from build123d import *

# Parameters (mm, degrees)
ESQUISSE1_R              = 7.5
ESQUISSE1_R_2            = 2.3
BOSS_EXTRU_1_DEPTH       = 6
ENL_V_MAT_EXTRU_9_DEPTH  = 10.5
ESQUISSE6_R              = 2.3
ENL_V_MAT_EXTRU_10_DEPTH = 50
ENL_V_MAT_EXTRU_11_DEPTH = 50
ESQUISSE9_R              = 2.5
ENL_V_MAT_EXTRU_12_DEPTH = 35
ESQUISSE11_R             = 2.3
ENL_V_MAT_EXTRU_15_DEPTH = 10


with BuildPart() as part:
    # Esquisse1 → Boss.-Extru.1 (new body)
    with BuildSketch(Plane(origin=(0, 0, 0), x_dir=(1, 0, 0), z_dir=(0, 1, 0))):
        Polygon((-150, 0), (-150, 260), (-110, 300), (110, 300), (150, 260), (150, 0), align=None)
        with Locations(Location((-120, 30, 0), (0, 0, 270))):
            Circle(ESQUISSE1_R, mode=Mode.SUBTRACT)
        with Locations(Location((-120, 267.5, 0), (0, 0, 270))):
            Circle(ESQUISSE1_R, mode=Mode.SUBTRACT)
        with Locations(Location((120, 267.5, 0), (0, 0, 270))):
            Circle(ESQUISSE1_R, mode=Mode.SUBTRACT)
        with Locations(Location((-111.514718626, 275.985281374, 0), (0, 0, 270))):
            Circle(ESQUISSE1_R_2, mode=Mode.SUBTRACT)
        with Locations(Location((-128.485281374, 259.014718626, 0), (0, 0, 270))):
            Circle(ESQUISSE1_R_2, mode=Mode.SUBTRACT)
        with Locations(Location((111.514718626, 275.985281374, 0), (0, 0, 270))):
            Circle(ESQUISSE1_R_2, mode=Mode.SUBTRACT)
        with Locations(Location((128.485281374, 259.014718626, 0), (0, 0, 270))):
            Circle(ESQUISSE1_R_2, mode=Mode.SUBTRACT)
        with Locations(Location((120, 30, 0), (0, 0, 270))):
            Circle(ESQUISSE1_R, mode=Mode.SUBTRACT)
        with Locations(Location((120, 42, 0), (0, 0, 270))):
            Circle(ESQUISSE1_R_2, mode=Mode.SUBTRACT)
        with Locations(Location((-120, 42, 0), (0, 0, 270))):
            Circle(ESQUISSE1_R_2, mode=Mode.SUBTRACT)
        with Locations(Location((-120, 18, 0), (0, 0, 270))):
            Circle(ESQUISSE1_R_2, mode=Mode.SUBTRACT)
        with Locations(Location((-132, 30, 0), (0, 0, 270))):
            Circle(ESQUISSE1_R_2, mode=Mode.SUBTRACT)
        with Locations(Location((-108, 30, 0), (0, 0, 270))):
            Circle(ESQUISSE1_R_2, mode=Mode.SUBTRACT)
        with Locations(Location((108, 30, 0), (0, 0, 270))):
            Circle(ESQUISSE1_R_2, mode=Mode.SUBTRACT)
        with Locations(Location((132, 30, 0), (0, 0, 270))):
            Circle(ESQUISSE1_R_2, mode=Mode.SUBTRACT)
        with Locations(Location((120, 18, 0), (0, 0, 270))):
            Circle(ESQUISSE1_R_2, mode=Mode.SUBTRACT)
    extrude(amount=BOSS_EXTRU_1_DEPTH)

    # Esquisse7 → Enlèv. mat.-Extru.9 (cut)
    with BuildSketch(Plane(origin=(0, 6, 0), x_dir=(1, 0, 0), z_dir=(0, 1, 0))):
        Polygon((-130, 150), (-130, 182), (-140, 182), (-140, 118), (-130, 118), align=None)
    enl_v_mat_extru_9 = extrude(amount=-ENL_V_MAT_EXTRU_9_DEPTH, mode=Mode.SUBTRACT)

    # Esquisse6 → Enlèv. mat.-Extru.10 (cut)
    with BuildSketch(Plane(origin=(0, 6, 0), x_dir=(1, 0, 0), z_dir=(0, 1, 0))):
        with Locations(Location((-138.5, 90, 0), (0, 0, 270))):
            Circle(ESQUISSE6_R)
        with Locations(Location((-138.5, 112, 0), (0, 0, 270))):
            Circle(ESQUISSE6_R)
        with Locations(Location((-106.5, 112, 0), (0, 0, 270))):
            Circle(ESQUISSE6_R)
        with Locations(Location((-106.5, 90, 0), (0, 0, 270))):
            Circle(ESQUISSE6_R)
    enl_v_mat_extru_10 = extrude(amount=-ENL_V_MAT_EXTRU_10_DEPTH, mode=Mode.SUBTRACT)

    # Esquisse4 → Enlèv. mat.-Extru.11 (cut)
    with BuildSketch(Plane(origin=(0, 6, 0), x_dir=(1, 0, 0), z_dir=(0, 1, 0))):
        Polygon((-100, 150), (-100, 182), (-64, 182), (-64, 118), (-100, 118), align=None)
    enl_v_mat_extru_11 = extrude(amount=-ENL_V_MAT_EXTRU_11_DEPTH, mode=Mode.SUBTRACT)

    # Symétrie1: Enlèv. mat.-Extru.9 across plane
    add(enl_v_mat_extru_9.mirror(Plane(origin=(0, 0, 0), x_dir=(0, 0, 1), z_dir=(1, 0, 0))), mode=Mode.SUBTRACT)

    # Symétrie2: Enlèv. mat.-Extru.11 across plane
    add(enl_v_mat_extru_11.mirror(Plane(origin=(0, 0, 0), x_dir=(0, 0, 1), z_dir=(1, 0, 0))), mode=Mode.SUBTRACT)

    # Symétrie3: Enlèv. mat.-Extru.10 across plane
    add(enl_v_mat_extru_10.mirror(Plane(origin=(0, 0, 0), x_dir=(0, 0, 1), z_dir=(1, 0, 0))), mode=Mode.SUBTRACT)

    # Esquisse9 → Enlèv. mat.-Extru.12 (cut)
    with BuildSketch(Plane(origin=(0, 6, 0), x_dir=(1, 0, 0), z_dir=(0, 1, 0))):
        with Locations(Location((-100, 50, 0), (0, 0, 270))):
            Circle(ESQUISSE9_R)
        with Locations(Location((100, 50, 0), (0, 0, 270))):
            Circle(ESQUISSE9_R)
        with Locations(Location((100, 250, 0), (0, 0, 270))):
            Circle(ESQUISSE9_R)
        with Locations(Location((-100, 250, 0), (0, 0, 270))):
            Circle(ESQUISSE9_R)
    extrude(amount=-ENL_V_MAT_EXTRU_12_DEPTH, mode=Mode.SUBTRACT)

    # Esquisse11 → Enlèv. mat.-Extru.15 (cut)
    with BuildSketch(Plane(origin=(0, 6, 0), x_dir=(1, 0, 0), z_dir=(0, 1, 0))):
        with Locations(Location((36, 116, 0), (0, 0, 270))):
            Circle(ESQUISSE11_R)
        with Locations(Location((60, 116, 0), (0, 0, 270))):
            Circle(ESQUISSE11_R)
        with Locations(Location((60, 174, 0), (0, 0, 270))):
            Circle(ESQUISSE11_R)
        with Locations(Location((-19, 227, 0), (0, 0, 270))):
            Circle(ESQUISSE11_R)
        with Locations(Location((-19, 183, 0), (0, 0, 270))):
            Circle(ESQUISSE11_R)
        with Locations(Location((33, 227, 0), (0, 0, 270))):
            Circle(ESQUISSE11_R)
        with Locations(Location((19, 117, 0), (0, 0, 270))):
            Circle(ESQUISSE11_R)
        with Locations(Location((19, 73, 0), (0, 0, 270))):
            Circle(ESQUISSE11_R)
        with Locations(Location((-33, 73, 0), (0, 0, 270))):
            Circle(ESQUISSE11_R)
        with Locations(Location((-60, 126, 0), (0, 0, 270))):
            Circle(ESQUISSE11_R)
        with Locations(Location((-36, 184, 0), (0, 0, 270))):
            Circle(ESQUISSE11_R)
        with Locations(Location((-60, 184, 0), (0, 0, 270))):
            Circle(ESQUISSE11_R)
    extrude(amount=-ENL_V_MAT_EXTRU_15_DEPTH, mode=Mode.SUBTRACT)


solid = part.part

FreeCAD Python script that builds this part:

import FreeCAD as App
import Part
import Sketcher
Q = App.Units.Quantity


def add_polygon(sketch, points):
    """Adds a closed chain of lines whose ends are joined by coincident constraints."""
    first, n = sketch.GeometryCount, len(points)
    for a, b in zip(points, points[1:] + points[:1]):
        sketch.addGeometry(Part.LineSegment(App.Vector(*a, 0), App.Vector(*b, 0)), False)
    for i in range(n):
        sketch.addConstraint(Sketcher.Constraint("Coincident", first + i, 2, first + (i + 1) % n, 1))

doc = App.newDocument("Part")
body = doc.addObject("PartDesign::Body", "Body")

# Sketch on XZ plane
sketch1 = doc.addObject("Sketcher::SketchObject", "Sketch")
body.addObject(sketch1)
sketch1.AttachmentSupport = (doc.XZ_Plane, [""])
sketch1.MapMode = "FlatFace"
add_polygon(sketch1, [(-150, -260), (-150, 0), (150, 0), (150, -260), (110, -300), (-110, -300)])  # lines 0-5
sketch1.addGeometry(Part.Circle(App.Vector(120, -18, 0), App.Vector(0, 0, 1), 2.3), False)  # 6
sketch1.addGeometry(Part.Circle(App.Vector(132, -30, 0), App.Vector(0, 0, 1), 2.3), False)  # 7
sketch1.addGeometry(Part.Circle(App.Vector(120, -30, 0), App.Vector(0, 0, 1), 7.5), False)  # 8
sketch1.addGeometry(Part.Circle(App.Vector(108, -30, 0), App.Vector(0, 0, 1), 2.3), False)  # 9
sketch1.addGeometry(Part.Circle(App.Vector(120, -42, 0), App.Vector(0, 0, 1), 2.3), False)  # 10
sketch1.addGeometry(Part.Circle(App.Vector(-108, -30, 0), App.Vector(0, 0, 1), 2.3), False)  # 11
sketch1.addGeometry(Part.Circle(App.Vector(-120, -18, 0), App.Vector(0, 0, 1), 2.3), False)  # 12
sketch1.addGeometry(Part.Circle(App.Vector(-120, -30, 0), App.Vector(0, 0, 1), 7.5), False)  # 13
sketch1.addGeometry(Part.Circle(App.Vector(-132, -30, 0), App.Vector(0, 0, 1), 2.3), False)  # 14
sketch1.addGeometry(Part.Circle(App.Vector(-120, -42, 0), App.Vector(0, 0, 1), 2.3), False)  # 15
sketch1.addGeometry(Part.Circle(App.Vector(128.485281, -259.014719, 0), App.Vector(0, 0, 1), 2.3), False)  # 16
sketch1.addGeometry(Part.Circle(App.Vector(120, -267.5, 0), App.Vector(0, 0, 1), 7.5), False)  # 17
sketch1.addGeometry(Part.Circle(App.Vector(111.514719, -275.985281, 0), App.Vector(0, 0, 1), 2.3), False)  # 18
sketch1.addGeometry(Part.Circle(App.Vector(-128.485281, -259.014719, 0), App.Vector(0, 0, 1), 2.3), False)  # 19
sketch1.addGeometry(Part.Circle(App.Vector(-111.514719, -275.985281, 0), App.Vector(0, 0, 1), 2.3), False)  # 20
sketch1.addGeometry(Part.Circle(App.Vector(-120, -267.5, 0), App.Vector(0, 0, 1), 7.5), False)  # 21
sketch1.addConstraint([
    Sketcher.Constraint("Vertical", 0),
    Sketcher.Constraint("Horizontal", 1),
    Sketcher.Constraint("Vertical", 2),
    Sketcher.Constraint("Horizontal", 4),
    Sketcher.Constraint("Equal", 6, 7),
    Sketcher.Constraint("Equal", 7, 9),
    Sketcher.Constraint("Equal", 9, 10),
    Sketcher.Constraint("Equal", 10, 11),
    Sketcher.Constraint("Equal", 11, 12),
    Sketcher.Constraint("Equal", 8, 13),
    Sketcher.Constraint("Equal", 12, 14),
    Sketcher.Constraint("Equal", 14, 15),
    Sketcher.Constraint("Equal", 15, 16),
    Sketcher.Constraint("Equal", 13, 17),
    Sketcher.Constraint("Equal", 16, 18),
    Sketcher.Constraint("Equal", 18, 19),
    Sketcher.Constraint("Equal", 19, 20),
    Sketcher.Constraint("Equal", 17, 21),
    Sketcher.Constraint("Symmetric", 0, 2, 1, 2, -1, 1),
    Sketcher.Constraint("Symmetric", 9, 3, 11, 3, -2),
    Sketcher.Constraint("Symmetric", 6, 3, 12, 3, -2),
    Sketcher.Constraint("Symmetric", 8, 3, 13, 3, -2),
    Sketcher.Constraint("Symmetric", 7, 3, 14, 3, -2),
    Sketcher.Constraint("Symmetric", 10, 3, 15, 3, -2),
    Sketcher.Constraint("Symmetric", 16, 3, 19, 3, -2),
    Sketcher.Constraint("Symmetric", 18, 3, 20, 3, -2),
    Sketcher.Constraint("Symmetric", 17, 3, 21, 3, -2),
    Sketcher.Constraint("Perpendicular", 3, 5),
    Sketcher.Constraint("Horizontal", 7, 3, 8, 3),
    Sketcher.Constraint("Horizontal", 8, 3, 9, 3),
    Sketcher.Constraint("Horizontal", 2, 2, 5, 2),
    Sketcher.Constraint("Vertical", 6, 3, 8, 3),
    Sketcher.Constraint("Vertical", 8, 3, 10, 3),
    Sketcher.Constraint("Vertical", 10, 3, 17, 3),
    Sketcher.Constraint("Equal", 3, 5),
    Sketcher.Constraint("Diameter", 8, Q("15 mm")),
    Sketcher.Constraint("Diameter", 6, Q("4.6 mm")),
    Sketcher.Constraint("DistanceX", 1, 1, 1, 2, Q("300 mm")),
    Sketcher.Constraint("DistanceX", 4, 2, 4, 1, Q("220 mm")),
    Sketcher.Constraint("DistanceY", 0, 1, 0, 2, Q("260 mm")),
    Sketcher.Constraint("DistanceX", -1, 1, 6, 3, Q("120 mm")),
    Sketcher.Constraint("DistanceY", 6, 3, -1, 1, Q("18 mm")),
    Sketcher.Constraint("DistanceX", -1, 1, 7, 3, Q("132 mm")),
    Sketcher.Constraint("DistanceY", 7, 3, -1, 1, Q("30 mm")),
    Sketcher.Constraint("DistanceX", -1, 1, 9, 3, Q("108 mm")),
    Sketcher.Constraint("DistanceY", 10, 3, -1, 1, Q("42 mm")),
    Sketcher.Constraint("DistanceX", 19, 3, 18, 3, Q("240 mm")),
    Sketcher.Constraint("DistanceY", 17, 3, -1, 1, Q("267.5 mm")),
    Sketcher.Constraint("DistanceX", -1, 1, 16, 3, Q("128.485281 mm")),
    Sketcher.Constraint("DistanceY", 16, 3, -1, 1, Q("259.014719 mm")),
    Sketcher.Constraint("DistanceY", 18, 3, -1, 1, Q("275.985281 mm")),
])
pad1 = doc.addObject("PartDesign::Pad", "Pad")
body.addObject(pad1)
pad1.Profile = sketch1
pad1.Length = 6
pad1.Reversed = True

# Sketch on XZ plane
sketch2 = doc.addObject("Sketcher::SketchObject", "Sketch001")
body.addObject(sketch2)
sketch2.AttachmentSupport = (doc.XZ_Plane, [""])
sketch2.MapMode = "FlatFace"
sketch2.AttachmentOffset = App.Placement(App.Vector(0, 0, -6), App.Rotation())
add_polygon(sketch2, [(-130, -182), (-140, -182), (-140, -118), (-130, -118)])  # lines 0-3
sketch2.addConstraint([
    Sketcher.Constraint("Horizontal", 0),
    Sketcher.Constraint("Vertical", 1),
    Sketcher.Constraint("Horizontal", 2),
    Sketcher.Constraint("Vertical", 3),
    Sketcher.Constraint("DistanceX", 0, 2, 0, 1, Q("10 mm")),
    Sketcher.Constraint("DistanceY", 1, 1, 1, 2, Q("64 mm")),
    Sketcher.Constraint("DistanceX", 0, 2, -1, 1, Q("140 mm")),
    Sketcher.Constraint("DistanceY", 0, 2, -1, 1, Q("182 mm")),
])
pocket1 = doc.addObject("PartDesign::Pocket", "Pocket")
body.addObject(pocket1)
pocket1.Profile = sketch2
pocket1.Length = 10.5
pocket1.Reversed = True

# Sketch on XZ plane
sketch3 = doc.addObject("Sketcher::SketchObject", "Sketch002")
body.addObject(sketch3)
sketch3.AttachmentSupport = (doc.XZ_Plane, [""])
sketch3.MapMode = "FlatFace"
sketch3.AttachmentOffset = App.Placement(App.Vector(0, 0, -6), App.Rotation())
sketch3.addGeometry([
    Part.Circle(App.Vector(-138.5, -90, 0), App.Vector(0, 0, 1), 2.3),
    Part.Circle(App.Vector(-138.5, -112, 0), App.Vector(0, 0, 1), 2.3),
    Part.Circle(App.Vector(-106.5, -112, 0), App.Vector(0, 0, 1), 2.3),
    Part.Circle(App.Vector(-106.5, -90, 0), App.Vector(0, 0, 1), 2.3),
], False)
sketch3.addConstraint([
    Sketcher.Constraint("Equal", 0, 1),
    Sketcher.Constraint("Equal", 1, 2),
    Sketcher.Constraint("Equal", 2, 3),
    Sketcher.Constraint("Horizontal", 1, 3, 2, 3),
    Sketcher.Constraint("Horizontal", 0, 3, 3, 3),
    Sketcher.Constraint("Vertical", 0, 3, 1, 3),
    Sketcher.Constraint("Vertical", 2, 3, 3, 3),
    Sketcher.Constraint("Diameter", 0, Q("4.6 mm")),
    Sketcher.Constraint("DistanceY", 0, 3, -1, 1, Q("90 mm")),
    Sketcher.Constraint("DistanceY", 1, 3, -1, 1, Q("112 mm")),
    Sketcher.Constraint("DistanceX", 1, 3, 2, 3, Q("32 mm")),
    Sketcher.Constraint("DistanceX", 0, 3, -1, 1, Q("138.5 mm")),
])
pocket2 = doc.addObject("PartDesign::Pocket", "Pocket001")
body.addObject(pocket2)
pocket2.Profile = sketch3
pocket2.Length = 50
pocket2.Reversed = True

# Sketch on XZ plane
sketch4 = doc.addObject("Sketcher::SketchObject", "Sketch003")
body.addObject(sketch4)
sketch4.AttachmentSupport = (doc.XZ_Plane, [""])
sketch4.MapMode = "FlatFace"
sketch4.AttachmentOffset = App.Placement(App.Vector(0, 0, -6), App.Rotation())
add_polygon(sketch4, [(-100, -182), (-100, -118), (-64, -118), (-64, -182)])  # lines 0-3
sketch4.addConstraint([
    Sketcher.Constraint("Vertical", 0),
    Sketcher.Constraint("Horizontal", 1),
    Sketcher.Constraint("Vertical", 2),
    Sketcher.Constraint("Horizontal", 3),
    Sketcher.Constraint("DistanceX", 1, 1, 1, 2, Q("36 mm")),
    Sketcher.Constraint("DistanceY", 0, 1, 0, 2, Q("64 mm")),
    Sketcher.Constraint("DistanceX", 0, 2, -1, 1, Q("100 mm")),
    Sketcher.Constraint("DistanceY", 0, 2, -1, 1, Q("118 mm")),
])
pocket3 = doc.addObject("PartDesign::Pocket", "Pocket002")
body.addObject(pocket3)
pocket3.Profile = sketch4
pocket3.Length = 50
pocket3.Reversed = True
doc.recompute()

mirrored = doc.addObject("PartDesign::Mirrored", "Mirrored")
body.addObject(mirrored)
mirrored.Originals = [pocket1]
mirrored.MirrorPlane = (doc.YZ_Plane, [""])
body.Tip = mirrored
doc.recompute()

mirrored2 = doc.addObject("PartDesign::Mirrored", "Mirrored001")
body.addObject(mirrored2)
mirrored2.Originals = [pocket3]
mirrored2.MirrorPlane = (doc.YZ_Plane, [""])
body.Tip = mirrored2
doc.recompute()

mirrored3 = doc.addObject("PartDesign::Mirrored", "Mirrored002")
body.addObject(mirrored3)
mirrored3.Originals = [pocket2]
mirrored3.MirrorPlane = (doc.YZ_Plane, [""])
body.Tip = mirrored3

# Sketch on XZ plane
sketch5 = doc.addObject("Sketcher::SketchObject", "Sketch004")
body.addObject(sketch5)
sketch5.AttachmentSupport = (doc.XZ_Plane, [""])
sketch5.MapMode = "FlatFace"
sketch5.AttachmentOffset = App.Placement(App.Vector(0, 0, -6), App.Rotation())
sketch5.addGeometry([
    Part.Circle(App.Vector(-100, -50, 0), App.Vector(0, 0, 1), 2.5),
    Part.Circle(App.Vector(100, -50, 0), App.Vector(0, 0, 1), 2.5),
    Part.Circle(App.Vector(100, -250, 0), App.Vector(0, 0, 1), 2.5),
    Part.Circle(App.Vector(-100, -250, 0), App.Vector(0, 0, 1), 2.5),
], False)
sketch5.addConstraint([
    Sketcher.Constraint("Equal", 0, 1),
    Sketcher.Constraint("Equal", 1, 2),
    Sketcher.Constraint("Equal", 2, 3),
    Sketcher.Constraint("Symmetric", 0, 3, 1, 3, -2),
    Sketcher.Constraint("Symmetric", 2, 3, 3, 3, -2),
    Sketcher.Constraint("Vertical", 1, 3, 2, 3),
    Sketcher.Constraint("Diameter", 0, Q("5 mm")),
    Sketcher.Constraint("DistanceX", 0, 3, -1, 1, Q("100 mm")),
    Sketcher.Constraint("DistanceY", 0, 3, -1, 1, Q("50 mm")),
    Sketcher.Constraint("DistanceY", 2, 3, -1, 1, Q("250 mm")),
])
pocket4 = doc.addObject("PartDesign::Pocket", "Pocket003")
body.addObject(pocket4)
pocket4.Profile = sketch5
pocket4.Length = 35
pocket4.Reversed = True

# Sketch on XZ plane
sketch6 = doc.addObject("Sketcher::SketchObject", "Sketch005")
body.addObject(sketch6)
sketch6.AttachmentSupport = (doc.XZ_Plane, [""])
sketch6.MapMode = "FlatFace"
sketch6.AttachmentOffset = App.Placement(App.Vector(0, 0, -6), App.Rotation())
sketch6.addGeometry([
    Part.Circle(App.Vector(36, -116, 0), App.Vector(0, 0, 1), 2.3),  # 0
    Part.Circle(App.Vector(60, -116, 0), App.Vector(0, 0, 1), 2.3),  # 1
    Part.Circle(App.Vector(60, -174, 0), App.Vector(0, 0, 1), 2.3),  # 2
    Part.Circle(App.Vector(-19, -227, 0), App.Vector(0, 0, 1), 2.3),  # 3
    Part.Circle(App.Vector(-19, -183, 0), App.Vector(0, 0, 1), 2.3),  # 4
    Part.Circle(App.Vector(33, -227, 0), App.Vector(0, 0, 1), 2.3),  # 5
    Part.Circle(App.Vector(19, -117, 0), App.Vector(0, 0, 1), 2.3),  # 6
    Part.Circle(App.Vector(19, -73, 0), App.Vector(0, 0, 1), 2.3),  # 7
    Part.Circle(App.Vector(-33, -73, 0), App.Vector(0, 0, 1), 2.3),  # 8
    Part.Circle(App.Vector(-60, -126, 0), App.Vector(0, 0, 1), 2.3),  # 9
    Part.Circle(App.Vector(-36, -184, 0), App.Vector(0, 0, 1), 2.3),  # 10
    Part.Circle(App.Vector(-60, -184, 0), App.Vector(0, 0, 1), 2.3),  # 11
], False)
sketch6.addConstraint([
    Sketcher.Constraint("Equal", 0, 1),
    Sketcher.Constraint("Equal", 1, 2),
    Sketcher.Constraint("Equal", 2, 3),
    Sketcher.Constraint("Equal", 3, 4),
    Sketcher.Constraint("Equal", 4, 5),
    Sketcher.Constraint("Equal", 5, 6),
    Sketcher.Constraint("Equal", 6, 7),
    Sketcher.Constraint("Equal", 7, 8),
    Sketcher.Constraint("Equal", 8, 9),
    Sketcher.Constraint("Equal", 9, 10),
    Sketcher.Constraint("Equal", 10, 11),
    Sketcher.Constraint("Horizontal", 0, 3, 1, 3),
    Sketcher.Constraint("Horizontal", 3, 3, 5, 3),
    Sketcher.Constraint("Horizontal", 7, 3, 8, 3),
    Sketcher.Constraint("Horizontal", 10, 3, 11, 3),
    Sketcher.Constraint("Vertical", 1, 3, 2, 3),
    Sketcher.Constraint("Vertical", 3, 3, 4, 3),
    Sketcher.Constraint("Vertical", 6, 3, 7, 3),
    Sketcher.Constraint("Vertical", 9, 3, 11, 3),
    Sketcher.Constraint("Diameter", 0, Q("4.6 mm")),
    Sketcher.Constraint("DistanceX", -1, 1, 0, 3, Q("36 mm")),
    Sketcher.Constraint("DistanceY", 0, 3, -1, 1, Q("116 mm")),
    Sketcher.Constraint("DistanceX", -1, 1, 1, 3, Q("60 mm")),
    Sketcher.Constraint("DistanceY", 2, 3, -1, 1, Q("174 mm")),
    Sketcher.Constraint("DistanceX", 3, 3, -1, 1, Q("19 mm")),
    Sketcher.Constraint("DistanceY", 3, 3, -1, 1, Q("227 mm")),
    Sketcher.Constraint("DistanceY", 4, 3, -1, 1, Q("183 mm")),
    Sketcher.Constraint("DistanceX", -1, 1, 5, 3, Q("33 mm")),
    Sketcher.Constraint("DistanceX", -1, 1, 6, 3, Q("19 mm")),
    Sketcher.Constraint("DistanceY", 6, 3, -1, 1, Q("117 mm")),
    Sketcher.Constraint("DistanceY", 7, 3, -1, 1, Q("73 mm")),
    Sketcher.Constraint("DistanceX", 8, 3, -1, 1, Q("33 mm")),
    Sketcher.Constraint("DistanceX", 9, 3, -1, 1, Q("60 mm")),
    Sketcher.Constraint("DistanceY", 9, 3, -1, 1, Q("126 mm")),
    Sketcher.Constraint("DistanceX", 10, 3, -1, 1, Q("36 mm")),
    Sketcher.Constraint("DistanceY", 10, 3, -1, 1, Q("184 mm")),
])
pocket5 = doc.addObject("PartDesign::Pocket", "Pocket004")
body.addObject(pocket5)
pocket5.Profile = sketch6
pocket5.Length = 10
pocket5.Reversed = True

doc.recompute()
